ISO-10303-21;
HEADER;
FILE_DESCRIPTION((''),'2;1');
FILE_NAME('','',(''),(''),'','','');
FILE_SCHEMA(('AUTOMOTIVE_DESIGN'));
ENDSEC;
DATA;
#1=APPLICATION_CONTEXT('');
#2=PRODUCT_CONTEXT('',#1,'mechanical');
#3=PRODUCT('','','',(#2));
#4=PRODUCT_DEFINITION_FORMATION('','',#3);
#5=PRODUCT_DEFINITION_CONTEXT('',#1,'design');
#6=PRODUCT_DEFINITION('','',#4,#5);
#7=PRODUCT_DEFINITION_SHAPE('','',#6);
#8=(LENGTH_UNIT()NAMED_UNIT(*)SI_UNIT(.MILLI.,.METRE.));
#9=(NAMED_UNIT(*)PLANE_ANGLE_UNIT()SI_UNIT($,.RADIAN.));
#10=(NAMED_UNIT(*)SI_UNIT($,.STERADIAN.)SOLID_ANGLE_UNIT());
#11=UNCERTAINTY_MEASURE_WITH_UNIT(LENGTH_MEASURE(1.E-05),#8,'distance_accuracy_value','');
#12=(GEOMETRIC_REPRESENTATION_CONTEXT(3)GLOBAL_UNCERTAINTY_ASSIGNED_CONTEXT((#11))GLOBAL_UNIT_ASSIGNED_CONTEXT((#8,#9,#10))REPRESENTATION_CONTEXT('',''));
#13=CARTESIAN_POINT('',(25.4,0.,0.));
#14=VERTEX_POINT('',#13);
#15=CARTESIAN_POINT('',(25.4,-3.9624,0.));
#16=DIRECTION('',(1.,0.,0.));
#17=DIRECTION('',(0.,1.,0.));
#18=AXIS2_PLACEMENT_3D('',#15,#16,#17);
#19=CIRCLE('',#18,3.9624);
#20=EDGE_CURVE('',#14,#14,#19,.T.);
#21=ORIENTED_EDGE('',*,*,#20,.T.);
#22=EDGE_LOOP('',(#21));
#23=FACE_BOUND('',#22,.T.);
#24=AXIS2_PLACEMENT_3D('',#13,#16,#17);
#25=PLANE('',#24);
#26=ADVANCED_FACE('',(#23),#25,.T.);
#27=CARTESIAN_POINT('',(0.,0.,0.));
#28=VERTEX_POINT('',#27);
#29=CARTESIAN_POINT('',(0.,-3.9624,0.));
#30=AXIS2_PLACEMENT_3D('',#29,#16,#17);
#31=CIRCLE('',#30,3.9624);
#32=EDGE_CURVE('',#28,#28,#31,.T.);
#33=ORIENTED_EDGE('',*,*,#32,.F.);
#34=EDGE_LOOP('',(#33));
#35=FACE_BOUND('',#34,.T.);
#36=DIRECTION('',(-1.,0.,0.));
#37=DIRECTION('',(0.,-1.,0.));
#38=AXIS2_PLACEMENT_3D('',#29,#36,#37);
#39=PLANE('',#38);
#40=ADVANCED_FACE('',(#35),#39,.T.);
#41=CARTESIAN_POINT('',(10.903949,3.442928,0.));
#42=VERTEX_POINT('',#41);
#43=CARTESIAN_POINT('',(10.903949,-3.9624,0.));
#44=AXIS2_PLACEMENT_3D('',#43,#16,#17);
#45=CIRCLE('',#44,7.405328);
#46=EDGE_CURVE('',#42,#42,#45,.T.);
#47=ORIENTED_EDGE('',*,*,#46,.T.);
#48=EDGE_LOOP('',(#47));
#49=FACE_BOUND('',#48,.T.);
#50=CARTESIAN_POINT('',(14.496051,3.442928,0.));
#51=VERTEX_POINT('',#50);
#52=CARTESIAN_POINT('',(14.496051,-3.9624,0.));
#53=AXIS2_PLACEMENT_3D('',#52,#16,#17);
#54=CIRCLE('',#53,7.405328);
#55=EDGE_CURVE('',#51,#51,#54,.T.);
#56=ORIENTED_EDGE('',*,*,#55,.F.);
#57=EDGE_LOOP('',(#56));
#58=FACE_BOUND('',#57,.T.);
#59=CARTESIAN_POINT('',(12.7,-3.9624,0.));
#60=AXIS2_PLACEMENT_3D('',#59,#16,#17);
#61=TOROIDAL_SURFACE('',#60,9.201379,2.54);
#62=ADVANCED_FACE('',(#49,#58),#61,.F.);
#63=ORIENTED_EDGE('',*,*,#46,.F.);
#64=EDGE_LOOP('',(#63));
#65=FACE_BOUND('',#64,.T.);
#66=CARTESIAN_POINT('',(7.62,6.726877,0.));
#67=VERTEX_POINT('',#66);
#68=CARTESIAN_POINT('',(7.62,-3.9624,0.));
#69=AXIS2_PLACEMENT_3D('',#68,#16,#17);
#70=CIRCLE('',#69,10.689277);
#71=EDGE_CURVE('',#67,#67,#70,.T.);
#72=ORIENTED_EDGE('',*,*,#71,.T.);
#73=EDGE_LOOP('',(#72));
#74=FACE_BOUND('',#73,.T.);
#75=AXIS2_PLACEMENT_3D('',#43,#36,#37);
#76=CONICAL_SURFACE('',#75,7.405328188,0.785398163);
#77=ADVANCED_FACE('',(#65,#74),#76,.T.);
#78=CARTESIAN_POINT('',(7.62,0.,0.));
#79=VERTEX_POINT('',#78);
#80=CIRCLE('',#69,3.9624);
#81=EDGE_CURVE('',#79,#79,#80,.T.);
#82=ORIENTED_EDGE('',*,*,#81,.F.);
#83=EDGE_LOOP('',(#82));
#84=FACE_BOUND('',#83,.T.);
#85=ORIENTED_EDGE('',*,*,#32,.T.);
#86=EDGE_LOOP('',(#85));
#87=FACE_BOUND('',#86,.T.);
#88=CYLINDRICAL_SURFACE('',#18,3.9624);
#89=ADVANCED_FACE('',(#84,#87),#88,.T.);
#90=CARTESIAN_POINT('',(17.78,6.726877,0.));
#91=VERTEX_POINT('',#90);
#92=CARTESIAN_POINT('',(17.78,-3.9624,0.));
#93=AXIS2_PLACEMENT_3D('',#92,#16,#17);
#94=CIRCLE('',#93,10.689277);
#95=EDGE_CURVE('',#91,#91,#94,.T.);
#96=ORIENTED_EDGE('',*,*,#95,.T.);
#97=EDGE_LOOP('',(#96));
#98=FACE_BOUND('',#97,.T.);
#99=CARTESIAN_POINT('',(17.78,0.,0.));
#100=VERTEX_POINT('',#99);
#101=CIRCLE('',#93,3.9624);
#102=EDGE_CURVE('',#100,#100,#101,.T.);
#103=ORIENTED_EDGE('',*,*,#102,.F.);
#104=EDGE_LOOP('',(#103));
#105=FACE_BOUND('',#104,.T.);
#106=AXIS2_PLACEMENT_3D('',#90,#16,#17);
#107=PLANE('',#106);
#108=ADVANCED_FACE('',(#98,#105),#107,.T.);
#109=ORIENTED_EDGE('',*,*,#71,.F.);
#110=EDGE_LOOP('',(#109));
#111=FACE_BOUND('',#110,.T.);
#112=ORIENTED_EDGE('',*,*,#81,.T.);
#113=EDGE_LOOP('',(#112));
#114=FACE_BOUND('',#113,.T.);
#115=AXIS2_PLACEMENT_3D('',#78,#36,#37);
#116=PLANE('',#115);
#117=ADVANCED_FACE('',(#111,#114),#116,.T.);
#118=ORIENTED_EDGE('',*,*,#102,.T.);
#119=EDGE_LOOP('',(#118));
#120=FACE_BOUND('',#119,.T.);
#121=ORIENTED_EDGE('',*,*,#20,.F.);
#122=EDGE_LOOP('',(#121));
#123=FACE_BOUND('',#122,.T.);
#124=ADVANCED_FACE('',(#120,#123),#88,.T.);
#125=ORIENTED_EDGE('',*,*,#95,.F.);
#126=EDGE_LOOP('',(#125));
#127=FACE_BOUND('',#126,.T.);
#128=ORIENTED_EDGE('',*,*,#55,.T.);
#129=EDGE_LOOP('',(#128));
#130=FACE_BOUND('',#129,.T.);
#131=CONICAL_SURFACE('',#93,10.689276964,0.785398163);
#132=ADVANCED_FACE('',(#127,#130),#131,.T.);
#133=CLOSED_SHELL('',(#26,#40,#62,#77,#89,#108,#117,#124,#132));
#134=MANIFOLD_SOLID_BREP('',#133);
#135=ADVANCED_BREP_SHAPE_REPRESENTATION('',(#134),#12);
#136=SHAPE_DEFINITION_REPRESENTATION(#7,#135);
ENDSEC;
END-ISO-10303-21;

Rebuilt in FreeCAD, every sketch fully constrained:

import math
import FreeCAD as App
import Part
import Sketcher
Q = App.Units.Quantity

doc = App.newDocument("Part")
params = doc.addObject("Spreadsheet::Sheet", "Params")
for row, (alias, value) in enumerate([
    ("sketch1_radius", "0.1 in"),
    ("sketch1_width", "1 in"),
    ("sketch1_width2", "0.3 in"),
    ("sketch1_height", "0.156 in"),
    ("revolution_angle", "360 deg"),
], start=1):
    params.set(f"A{row}", alias)
    params.set(f"B{row}", "=" + value)
    params.setAlias(f"B{row}", alias)

body = doc.addObject("PartDesign::Body", "Body")

# Sketch on XY plane
sketch1 = body.newObject("Sketcher::SketchObject", "Sketch")
sketch1.AttachmentSupport = (doc.getObject("XY_Plane"), [""])
sketch1.MapMode = "FlatFace"
sketch1.addGeometry(Part.LineSegment(App.Vector(7.6, 0, 0), App.Vector(0, 0, 0)), False)
sketch1.addGeometry(Part.LineSegment(App.Vector(0, 0, 0), App.Vector(0, -4, 0)), False)
sketch1.addGeometry(Part.LineSegment(App.Vector(0, -4, 0), App.Vector(25.4, -4, 0)), False)
sketch1.addGeometry(Part.LineSegment(App.Vector(25.4, -4, 0), App.Vector(25.4, 0, 0)), False)
sketch1.addGeometry(Part.LineSegment(App.Vector(25.4, 0, 0), App.Vector(17.8, 0, 0)), False)
sketch1.addGeometry(Part.LineSegment(App.Vector(17.8, 0, 0), App.Vector(17.8, 6.7, 0)), False)
sketch1.addGeometry(Part.LineSegment(App.Vector(17.8, 6.7, 0), App.Vector(14.5, 3.4, 0)), False)
sketch1.addGeometry(Part.ArcOfCircle(Part.Circle(App.Vector(12.7, 5.2, 0), App.Vector(0, 0, 1), 2.5), math.radians(-135), math.radians(-45)), False)
sketch1.addGeometry(Part.LineSegment(App.Vector(10.9, 3.4, 0), App.Vector(7.6, 6.7, 0)), False)
sketch1.addGeometry(Part.LineSegment(App.Vector(7.6, 6.7, 0), App.Vector(7.6, 0, 0)), False)
sketch1.addGeometry(Part.LineSegment(App.Vector(25.4, -4, 0), App.Vector(0, -4, 0)), True)  # axis
sketch1.addConstraint(Sketcher.Constraint("Coincident", 0, 2, 1, 1))
sketch1.addConstraint(Sketcher.Constraint("Coincident", 1, 2, 2, 1))
sketch1.addConstraint(Sketcher.Constraint("Coincident", 2, 2, 3, 1))
sketch1.addConstraint(Sketcher.Constraint("Coincident", 3, 2, 4, 1))
sketch1.addConstraint(Sketcher.Constraint("Coincident", 4, 2, 5, 1))
sketch1.addConstraint(Sketcher.Constraint("Coincident", 5, 2, 6, 1))
sketch1.addConstraint(Sketcher.Constraint("Tangent", 6, 2, 7, 2))
sketch1.addConstraint(Sketcher.Constraint("Tangent", 7, 1, 8, 1))
sketch1.addConstraint(Sketcher.Constraint("Coincident", 8, 2, 9, 1))
sketch1.addConstraint(Sketcher.Constraint("Coincident", 9, 2, 0, 1))
sketch1.addConstraint(Sketcher.Constraint("Horizontal", 0))
sketch1.addConstraint(Sketcher.Constraint("Vertical", 1))
sketch1.addConstraint(Sketcher.Constraint("Horizontal", 2))
sketch1.addConstraint(Sketcher.Constraint("Vertical", 3))
sketch1.addConstraint(Sketcher.Constraint("Horizontal", 4))
sketch1.addConstraint(Sketcher.Constraint("Vertical", 5))
sketch1.addConstraint(Sketcher.Constraint("Vertical", 9))
sketch1.addConstraint(Sketcher.Constraint("Horizontal", 10))
sketch1.addConstraint(Sketcher.Constraint("Coincident", 0, 2, -1, 1))
sketch1.addConstraint(Sketcher.Constraint("Coincident", 10, 1, 2, 2))
sketch1.addConstraint(Sketcher.Constraint("PointOnObject", 3, 2, -1))
sketch1.addConstraint(Sketcher.Constraint("PointOnObject", 10, 2, -2))
sketch1.addConstraint(Sketcher.Constraint("Perpendicular", 6, 8))
sketch1.addConstraint(Sketcher.Constraint("Horizontal", 6, 2, 7, 1))
sketch1.addConstraint(Sketcher.Constraint("Horizontal", 5, 2, 8, 2))
sketch1.addConstraint(Sketcher.Constraint("Equal", 0, 4))
sketch1.addConstraint(Sketcher.Constraint("Radius", 7, Q("0.1 in")))
sketch1.addConstraint(Sketcher.Constraint("DistanceX", 2, 1, 2, 2, Q("1 in")))
sketch1.addConstraint(Sketcher.Constraint("DistanceX", 0, 2, 0, 1, Q("0.3 in")))
sketch1.addConstraint(Sketcher.Constraint("DistanceY", 1, 2, 1, 1, Q("0.156 in")))
sketch1.addConstraint(Sketcher.Constraint("DistanceY", 5, 1, 5, 2, Q("6.726877 mm")))
sketch1.setExpression("Constraints[26]", "Params.sketch1_radius")
sketch1.setExpression("Constraints[27]", "Params.sketch1_width")
sketch1.setExpression("Constraints[28]", "Params.sketch1_width2")
sketch1.setExpression("Constraints[29]", "Params.sketch1_height")
revolution = body.newObject("PartDesign::Revolution", "Revolution")
revolution.Profile = sketch1
revolution.ReferenceAxis = (sketch1, ["Axis0"])
revolution.setExpression("Angle", "Params.revolution_angle")

doc.recompute()
